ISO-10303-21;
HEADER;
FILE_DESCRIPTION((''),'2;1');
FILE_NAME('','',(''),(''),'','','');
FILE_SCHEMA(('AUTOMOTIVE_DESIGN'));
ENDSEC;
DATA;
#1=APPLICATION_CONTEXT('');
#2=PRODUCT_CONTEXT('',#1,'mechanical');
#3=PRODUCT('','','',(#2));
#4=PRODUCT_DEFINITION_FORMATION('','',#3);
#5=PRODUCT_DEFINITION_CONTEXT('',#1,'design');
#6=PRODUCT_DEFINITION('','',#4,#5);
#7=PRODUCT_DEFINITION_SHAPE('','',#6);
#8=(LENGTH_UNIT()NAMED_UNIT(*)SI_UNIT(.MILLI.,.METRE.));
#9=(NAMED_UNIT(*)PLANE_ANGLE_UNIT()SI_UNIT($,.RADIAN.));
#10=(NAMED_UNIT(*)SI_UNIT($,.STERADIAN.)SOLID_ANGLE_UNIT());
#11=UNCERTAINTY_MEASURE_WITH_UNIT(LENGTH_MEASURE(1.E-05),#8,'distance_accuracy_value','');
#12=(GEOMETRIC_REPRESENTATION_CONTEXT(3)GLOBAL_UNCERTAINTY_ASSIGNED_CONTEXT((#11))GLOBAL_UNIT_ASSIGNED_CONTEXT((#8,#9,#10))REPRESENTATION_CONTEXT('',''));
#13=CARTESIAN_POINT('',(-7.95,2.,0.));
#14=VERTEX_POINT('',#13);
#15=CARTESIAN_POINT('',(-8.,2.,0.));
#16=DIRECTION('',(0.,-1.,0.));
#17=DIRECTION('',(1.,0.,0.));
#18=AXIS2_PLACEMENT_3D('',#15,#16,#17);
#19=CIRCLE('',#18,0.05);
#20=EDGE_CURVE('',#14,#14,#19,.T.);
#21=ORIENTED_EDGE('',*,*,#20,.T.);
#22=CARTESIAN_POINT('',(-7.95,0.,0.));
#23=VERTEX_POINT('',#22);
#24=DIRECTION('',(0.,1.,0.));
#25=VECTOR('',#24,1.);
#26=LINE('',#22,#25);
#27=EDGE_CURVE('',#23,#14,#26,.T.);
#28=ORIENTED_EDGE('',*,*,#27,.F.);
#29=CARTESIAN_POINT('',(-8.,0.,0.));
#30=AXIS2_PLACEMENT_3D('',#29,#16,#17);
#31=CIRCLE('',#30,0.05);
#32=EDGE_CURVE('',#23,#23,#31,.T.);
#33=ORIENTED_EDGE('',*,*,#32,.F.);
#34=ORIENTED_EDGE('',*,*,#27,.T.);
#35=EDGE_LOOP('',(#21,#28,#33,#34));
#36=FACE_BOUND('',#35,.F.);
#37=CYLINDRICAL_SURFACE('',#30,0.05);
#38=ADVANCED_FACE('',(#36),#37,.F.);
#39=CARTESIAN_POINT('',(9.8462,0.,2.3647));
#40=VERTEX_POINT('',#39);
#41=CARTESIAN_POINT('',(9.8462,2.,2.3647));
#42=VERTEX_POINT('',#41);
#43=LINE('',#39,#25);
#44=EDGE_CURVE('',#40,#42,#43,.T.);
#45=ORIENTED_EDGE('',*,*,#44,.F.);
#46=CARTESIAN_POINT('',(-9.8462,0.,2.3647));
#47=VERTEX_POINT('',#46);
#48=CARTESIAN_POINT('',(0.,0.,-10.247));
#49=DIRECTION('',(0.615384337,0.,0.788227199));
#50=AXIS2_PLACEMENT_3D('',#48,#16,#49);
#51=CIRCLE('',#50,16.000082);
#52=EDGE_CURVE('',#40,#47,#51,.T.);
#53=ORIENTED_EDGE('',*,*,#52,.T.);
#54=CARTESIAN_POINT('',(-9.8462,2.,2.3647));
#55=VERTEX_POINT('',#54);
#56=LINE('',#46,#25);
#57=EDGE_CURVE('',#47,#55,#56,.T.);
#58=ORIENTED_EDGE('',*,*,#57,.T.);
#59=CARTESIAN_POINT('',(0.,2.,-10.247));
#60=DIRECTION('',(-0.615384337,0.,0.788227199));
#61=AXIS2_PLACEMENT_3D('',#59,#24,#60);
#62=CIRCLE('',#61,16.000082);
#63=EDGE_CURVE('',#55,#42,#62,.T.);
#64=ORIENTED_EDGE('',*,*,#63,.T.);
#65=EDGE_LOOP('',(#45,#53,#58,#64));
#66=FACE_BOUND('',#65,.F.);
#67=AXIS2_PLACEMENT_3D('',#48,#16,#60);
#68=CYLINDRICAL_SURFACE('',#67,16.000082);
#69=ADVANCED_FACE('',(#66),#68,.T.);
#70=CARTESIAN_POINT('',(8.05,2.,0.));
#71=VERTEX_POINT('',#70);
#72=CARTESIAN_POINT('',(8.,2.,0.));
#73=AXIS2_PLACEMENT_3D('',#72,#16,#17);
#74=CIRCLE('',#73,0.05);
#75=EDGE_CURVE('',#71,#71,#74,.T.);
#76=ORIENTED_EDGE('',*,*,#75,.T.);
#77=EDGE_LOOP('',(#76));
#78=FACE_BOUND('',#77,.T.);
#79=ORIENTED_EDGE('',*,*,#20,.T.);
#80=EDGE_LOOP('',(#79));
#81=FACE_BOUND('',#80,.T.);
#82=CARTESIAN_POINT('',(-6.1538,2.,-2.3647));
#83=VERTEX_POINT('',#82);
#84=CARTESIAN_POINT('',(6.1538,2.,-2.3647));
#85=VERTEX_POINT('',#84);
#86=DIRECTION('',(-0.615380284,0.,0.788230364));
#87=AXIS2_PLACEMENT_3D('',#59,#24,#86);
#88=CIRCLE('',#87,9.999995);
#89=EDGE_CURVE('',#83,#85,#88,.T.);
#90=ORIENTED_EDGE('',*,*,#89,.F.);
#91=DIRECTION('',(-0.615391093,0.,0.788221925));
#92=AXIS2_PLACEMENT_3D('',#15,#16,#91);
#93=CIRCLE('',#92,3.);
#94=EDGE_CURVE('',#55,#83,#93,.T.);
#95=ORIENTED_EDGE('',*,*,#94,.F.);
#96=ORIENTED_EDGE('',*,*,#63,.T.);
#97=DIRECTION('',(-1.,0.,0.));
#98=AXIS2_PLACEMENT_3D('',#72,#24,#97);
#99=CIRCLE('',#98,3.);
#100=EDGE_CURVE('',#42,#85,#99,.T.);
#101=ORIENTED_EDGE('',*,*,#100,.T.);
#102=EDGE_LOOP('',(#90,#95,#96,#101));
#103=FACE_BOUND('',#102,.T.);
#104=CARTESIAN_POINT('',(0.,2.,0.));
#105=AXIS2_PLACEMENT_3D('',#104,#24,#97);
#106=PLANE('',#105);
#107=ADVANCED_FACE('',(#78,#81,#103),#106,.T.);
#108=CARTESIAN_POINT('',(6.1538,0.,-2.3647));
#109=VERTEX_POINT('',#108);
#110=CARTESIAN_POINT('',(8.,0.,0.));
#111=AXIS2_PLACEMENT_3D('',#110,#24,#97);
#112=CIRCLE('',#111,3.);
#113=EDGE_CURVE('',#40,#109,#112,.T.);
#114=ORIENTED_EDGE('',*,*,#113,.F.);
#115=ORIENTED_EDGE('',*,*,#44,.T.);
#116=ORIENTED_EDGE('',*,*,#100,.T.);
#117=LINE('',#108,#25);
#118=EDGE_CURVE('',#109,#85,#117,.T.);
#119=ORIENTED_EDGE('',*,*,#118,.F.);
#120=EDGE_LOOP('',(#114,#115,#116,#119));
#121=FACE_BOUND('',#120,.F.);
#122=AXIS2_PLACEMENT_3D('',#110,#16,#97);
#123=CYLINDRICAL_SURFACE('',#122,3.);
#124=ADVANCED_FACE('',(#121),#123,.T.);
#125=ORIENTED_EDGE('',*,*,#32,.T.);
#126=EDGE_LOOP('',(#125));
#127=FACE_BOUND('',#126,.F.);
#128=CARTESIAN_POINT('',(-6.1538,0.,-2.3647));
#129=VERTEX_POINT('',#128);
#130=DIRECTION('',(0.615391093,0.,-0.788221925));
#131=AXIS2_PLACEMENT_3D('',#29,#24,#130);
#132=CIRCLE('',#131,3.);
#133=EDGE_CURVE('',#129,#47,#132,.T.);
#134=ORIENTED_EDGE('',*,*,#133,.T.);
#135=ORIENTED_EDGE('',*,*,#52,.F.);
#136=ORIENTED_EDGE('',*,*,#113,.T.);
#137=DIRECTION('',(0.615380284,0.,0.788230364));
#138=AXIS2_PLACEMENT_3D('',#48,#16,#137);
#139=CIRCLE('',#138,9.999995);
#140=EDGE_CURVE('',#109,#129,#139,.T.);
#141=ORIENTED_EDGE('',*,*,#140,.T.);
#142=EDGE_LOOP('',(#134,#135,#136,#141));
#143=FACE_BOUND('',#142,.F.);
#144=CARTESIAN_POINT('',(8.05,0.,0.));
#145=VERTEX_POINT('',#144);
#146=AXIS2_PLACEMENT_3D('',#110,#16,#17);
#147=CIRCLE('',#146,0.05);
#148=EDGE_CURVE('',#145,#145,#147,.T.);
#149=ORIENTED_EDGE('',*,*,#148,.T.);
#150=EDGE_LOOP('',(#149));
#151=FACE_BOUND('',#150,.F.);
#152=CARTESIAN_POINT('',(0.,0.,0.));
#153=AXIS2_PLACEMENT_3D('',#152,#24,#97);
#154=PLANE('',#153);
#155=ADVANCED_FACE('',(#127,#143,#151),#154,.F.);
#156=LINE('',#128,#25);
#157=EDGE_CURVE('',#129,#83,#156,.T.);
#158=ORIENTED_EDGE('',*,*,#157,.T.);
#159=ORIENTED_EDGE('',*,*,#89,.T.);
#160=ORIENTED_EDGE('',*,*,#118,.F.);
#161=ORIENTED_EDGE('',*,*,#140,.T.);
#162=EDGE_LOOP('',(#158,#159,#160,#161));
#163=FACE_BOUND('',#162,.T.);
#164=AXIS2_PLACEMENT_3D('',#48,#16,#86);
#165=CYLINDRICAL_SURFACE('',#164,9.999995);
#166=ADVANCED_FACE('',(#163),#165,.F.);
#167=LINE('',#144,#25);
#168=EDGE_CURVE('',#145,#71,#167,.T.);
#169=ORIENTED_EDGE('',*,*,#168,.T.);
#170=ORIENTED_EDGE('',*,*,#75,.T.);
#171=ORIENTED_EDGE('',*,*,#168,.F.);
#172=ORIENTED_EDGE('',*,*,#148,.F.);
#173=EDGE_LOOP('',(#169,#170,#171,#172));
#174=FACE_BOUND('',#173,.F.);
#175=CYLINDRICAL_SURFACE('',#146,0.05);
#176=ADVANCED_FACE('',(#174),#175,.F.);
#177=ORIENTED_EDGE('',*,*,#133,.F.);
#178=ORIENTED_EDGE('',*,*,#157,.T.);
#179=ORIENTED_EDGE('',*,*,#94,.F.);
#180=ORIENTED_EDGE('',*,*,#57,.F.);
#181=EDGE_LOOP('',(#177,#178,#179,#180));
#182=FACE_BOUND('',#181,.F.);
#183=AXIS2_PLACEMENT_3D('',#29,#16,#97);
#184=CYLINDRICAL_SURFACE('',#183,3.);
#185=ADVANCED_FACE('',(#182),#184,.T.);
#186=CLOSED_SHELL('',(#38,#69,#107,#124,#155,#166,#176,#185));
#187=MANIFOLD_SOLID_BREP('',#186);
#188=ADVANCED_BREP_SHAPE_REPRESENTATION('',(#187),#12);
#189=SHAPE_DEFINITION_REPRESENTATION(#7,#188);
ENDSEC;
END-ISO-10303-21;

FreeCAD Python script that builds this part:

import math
import FreeCAD as App
import Part
import Sketcher

doc = App.newDocument("Part")
body = doc.addObject("PartDesign::Body", "Body")

# Sketch on XZ plane
sketch1 = body.newObject("Sketcher::SketchObject", "Sketch")
sketch1.AttachmentSupport = (doc.getObject("XZ_Plane"), [""])
sketch1.MapMode = "FlatFace"
sketch1.addGeometry(Part.ArcOfCircle(Part.Circle(App.Vector(-8, 0, 0), App.Vector(0, 0, 1), 3), math.radians(128), math.radians(308)), False)
sketch1.addGeometry(Part.ArcOfCircle(Part.Circle(App.Vector(0, -10.2, 0), App.Vector(0, 0, 1), 16), math.radians(52), math.radians(128)), False)
sketch1.addGeometry(Part.ArcOfCircle(Part.Circle(App.Vector(8, 0, 0), App.Vector(0, 0, 1), 3), math.radians(-128), math.radians(52)), False)
sketch1.addGeometry(Part.ArcOfCircle(Part.Circle(App.Vector(0, -10.2, 0), App.Vector(0, 0, 1), 10), math.radians(52), math.radians(128)), False)
sketch1.addGeometry(Part.Circle(App.Vector(-8, 0, 0), App.Vector(0, 0, 1), 1.5), False)
sketch1.addGeometry(Part.Circle(App.Vector(8, 0, 0), App.Vector(0, 0, 1), 1.5), False)
sketch1.addConstraint(Sketcher.Constraint("Tangent", 0, 1, 1, 2))
sketch1.addConstraint(Sketcher.Constraint("Tangent", 1, 1, 2, 2))
sketch1.addConstraint(Sketcher.Constraint("Tangent", 2, 1, 3, 1))
sketch1.addConstraint(Sketcher.Constraint("Tangent", 3, 2, 0, 2))
sketch1.addConstraint(Sketcher.Constraint("Coincident", 3, 3, 1, 3))
sketch1.addConstraint(Sketcher.Constraint("Coincident", 4, 3, 0, 3))
sketch1.addConstraint(Sketcher.Constraint("Coincident", 5, 3, 2, 3))
sketch1.addConstraint(Sketcher.Constraint("Equal", 4, 5))
sketch1.addConstraint(Sketcher.Constraint("Symmetric", 0, 3, 2, 3, -1, 1))
sketch1.addConstraint(Sketcher.Constraint("PointOnObject", 0, 3, -1))
sketch1.addConstraint(Sketcher.Constraint("Diameter", 4, 3.0))
sketch1.addConstraint(Sketcher.Constraint("Radius", 0, 3.0))
sketch1.addConstraint(Sketcher.Constraint("Radius", 1, 16.0))
sketch1.addConstraint(Sketcher.Constraint("DistanceX", 0, 3, 2, 3, 16.0))
pad1 = body.newObject("PartDesign::Pad", "Pad")
pad1.Profile = sketch1
pad1.Length = 2
pad1.Reversed = True

# Sketch on XZ plane
sketch2 = body.newObject("Sketcher::SketchObject", "Sketch001")
sketch2.AttachmentSupport = (doc.getObject("XZ_Plane"), [""])
sketch2.MapMode = "FlatFace"
sketch2.addGeometry(Part.Circle(App.Vector(8, 0, 0), App.Vector(0, 0, 1), 1.5), False)
sketch2.addGeometry(Part.Circle(App.Vector(8, 0, 0), App.Vector(0, 0, 1), 0.05), False)
sketch2.addGeometry(Part.Circle(App.Vector(-8, 0, 0), App.Vector(0, 0, 1), 1.5), False)
sketch2.addGeometry(Part.Circle(App.Vector(-8, 0, 0), App.Vector(0, 0, 1), 0.05), False)
sketch2.addConstraint(Sketcher.Constraint("Coincident", 1, 3, 0, 3))
sketch2.addConstraint(Sketcher.Constraint("Coincident", 3, 3, 2, 3))
sketch2.addConstraint(Sketcher.Constraint("Equal", 0, 2))
sketch2.addConstraint(Sketcher.Constraint("Equal", 1, 3))
sketch2.addConstraint(Sketcher.Constraint("Symmetric", 0, 3, 2, 3, -1, 1))
sketch2.addConstraint(Sketcher.Constraint("PointOnObject", 0, 3, -1))
sketch2.addConstraint(Sketcher.Constraint("Diameter", 1, 0.1))
sketch2.addConstraint(Sketcher.Constraint("Diameter", 0, 3.0))
sketch2.addConstraint(Sketcher.Constraint("DistanceX", -1, 1, 0, 3, 8.0))
pad2 = body.newObject("PartDesign::Pad", "Pad001")
pad2.Profile = sketch2
pad2.Length = 2
pad2.Reversed = True

doc.recompute()
